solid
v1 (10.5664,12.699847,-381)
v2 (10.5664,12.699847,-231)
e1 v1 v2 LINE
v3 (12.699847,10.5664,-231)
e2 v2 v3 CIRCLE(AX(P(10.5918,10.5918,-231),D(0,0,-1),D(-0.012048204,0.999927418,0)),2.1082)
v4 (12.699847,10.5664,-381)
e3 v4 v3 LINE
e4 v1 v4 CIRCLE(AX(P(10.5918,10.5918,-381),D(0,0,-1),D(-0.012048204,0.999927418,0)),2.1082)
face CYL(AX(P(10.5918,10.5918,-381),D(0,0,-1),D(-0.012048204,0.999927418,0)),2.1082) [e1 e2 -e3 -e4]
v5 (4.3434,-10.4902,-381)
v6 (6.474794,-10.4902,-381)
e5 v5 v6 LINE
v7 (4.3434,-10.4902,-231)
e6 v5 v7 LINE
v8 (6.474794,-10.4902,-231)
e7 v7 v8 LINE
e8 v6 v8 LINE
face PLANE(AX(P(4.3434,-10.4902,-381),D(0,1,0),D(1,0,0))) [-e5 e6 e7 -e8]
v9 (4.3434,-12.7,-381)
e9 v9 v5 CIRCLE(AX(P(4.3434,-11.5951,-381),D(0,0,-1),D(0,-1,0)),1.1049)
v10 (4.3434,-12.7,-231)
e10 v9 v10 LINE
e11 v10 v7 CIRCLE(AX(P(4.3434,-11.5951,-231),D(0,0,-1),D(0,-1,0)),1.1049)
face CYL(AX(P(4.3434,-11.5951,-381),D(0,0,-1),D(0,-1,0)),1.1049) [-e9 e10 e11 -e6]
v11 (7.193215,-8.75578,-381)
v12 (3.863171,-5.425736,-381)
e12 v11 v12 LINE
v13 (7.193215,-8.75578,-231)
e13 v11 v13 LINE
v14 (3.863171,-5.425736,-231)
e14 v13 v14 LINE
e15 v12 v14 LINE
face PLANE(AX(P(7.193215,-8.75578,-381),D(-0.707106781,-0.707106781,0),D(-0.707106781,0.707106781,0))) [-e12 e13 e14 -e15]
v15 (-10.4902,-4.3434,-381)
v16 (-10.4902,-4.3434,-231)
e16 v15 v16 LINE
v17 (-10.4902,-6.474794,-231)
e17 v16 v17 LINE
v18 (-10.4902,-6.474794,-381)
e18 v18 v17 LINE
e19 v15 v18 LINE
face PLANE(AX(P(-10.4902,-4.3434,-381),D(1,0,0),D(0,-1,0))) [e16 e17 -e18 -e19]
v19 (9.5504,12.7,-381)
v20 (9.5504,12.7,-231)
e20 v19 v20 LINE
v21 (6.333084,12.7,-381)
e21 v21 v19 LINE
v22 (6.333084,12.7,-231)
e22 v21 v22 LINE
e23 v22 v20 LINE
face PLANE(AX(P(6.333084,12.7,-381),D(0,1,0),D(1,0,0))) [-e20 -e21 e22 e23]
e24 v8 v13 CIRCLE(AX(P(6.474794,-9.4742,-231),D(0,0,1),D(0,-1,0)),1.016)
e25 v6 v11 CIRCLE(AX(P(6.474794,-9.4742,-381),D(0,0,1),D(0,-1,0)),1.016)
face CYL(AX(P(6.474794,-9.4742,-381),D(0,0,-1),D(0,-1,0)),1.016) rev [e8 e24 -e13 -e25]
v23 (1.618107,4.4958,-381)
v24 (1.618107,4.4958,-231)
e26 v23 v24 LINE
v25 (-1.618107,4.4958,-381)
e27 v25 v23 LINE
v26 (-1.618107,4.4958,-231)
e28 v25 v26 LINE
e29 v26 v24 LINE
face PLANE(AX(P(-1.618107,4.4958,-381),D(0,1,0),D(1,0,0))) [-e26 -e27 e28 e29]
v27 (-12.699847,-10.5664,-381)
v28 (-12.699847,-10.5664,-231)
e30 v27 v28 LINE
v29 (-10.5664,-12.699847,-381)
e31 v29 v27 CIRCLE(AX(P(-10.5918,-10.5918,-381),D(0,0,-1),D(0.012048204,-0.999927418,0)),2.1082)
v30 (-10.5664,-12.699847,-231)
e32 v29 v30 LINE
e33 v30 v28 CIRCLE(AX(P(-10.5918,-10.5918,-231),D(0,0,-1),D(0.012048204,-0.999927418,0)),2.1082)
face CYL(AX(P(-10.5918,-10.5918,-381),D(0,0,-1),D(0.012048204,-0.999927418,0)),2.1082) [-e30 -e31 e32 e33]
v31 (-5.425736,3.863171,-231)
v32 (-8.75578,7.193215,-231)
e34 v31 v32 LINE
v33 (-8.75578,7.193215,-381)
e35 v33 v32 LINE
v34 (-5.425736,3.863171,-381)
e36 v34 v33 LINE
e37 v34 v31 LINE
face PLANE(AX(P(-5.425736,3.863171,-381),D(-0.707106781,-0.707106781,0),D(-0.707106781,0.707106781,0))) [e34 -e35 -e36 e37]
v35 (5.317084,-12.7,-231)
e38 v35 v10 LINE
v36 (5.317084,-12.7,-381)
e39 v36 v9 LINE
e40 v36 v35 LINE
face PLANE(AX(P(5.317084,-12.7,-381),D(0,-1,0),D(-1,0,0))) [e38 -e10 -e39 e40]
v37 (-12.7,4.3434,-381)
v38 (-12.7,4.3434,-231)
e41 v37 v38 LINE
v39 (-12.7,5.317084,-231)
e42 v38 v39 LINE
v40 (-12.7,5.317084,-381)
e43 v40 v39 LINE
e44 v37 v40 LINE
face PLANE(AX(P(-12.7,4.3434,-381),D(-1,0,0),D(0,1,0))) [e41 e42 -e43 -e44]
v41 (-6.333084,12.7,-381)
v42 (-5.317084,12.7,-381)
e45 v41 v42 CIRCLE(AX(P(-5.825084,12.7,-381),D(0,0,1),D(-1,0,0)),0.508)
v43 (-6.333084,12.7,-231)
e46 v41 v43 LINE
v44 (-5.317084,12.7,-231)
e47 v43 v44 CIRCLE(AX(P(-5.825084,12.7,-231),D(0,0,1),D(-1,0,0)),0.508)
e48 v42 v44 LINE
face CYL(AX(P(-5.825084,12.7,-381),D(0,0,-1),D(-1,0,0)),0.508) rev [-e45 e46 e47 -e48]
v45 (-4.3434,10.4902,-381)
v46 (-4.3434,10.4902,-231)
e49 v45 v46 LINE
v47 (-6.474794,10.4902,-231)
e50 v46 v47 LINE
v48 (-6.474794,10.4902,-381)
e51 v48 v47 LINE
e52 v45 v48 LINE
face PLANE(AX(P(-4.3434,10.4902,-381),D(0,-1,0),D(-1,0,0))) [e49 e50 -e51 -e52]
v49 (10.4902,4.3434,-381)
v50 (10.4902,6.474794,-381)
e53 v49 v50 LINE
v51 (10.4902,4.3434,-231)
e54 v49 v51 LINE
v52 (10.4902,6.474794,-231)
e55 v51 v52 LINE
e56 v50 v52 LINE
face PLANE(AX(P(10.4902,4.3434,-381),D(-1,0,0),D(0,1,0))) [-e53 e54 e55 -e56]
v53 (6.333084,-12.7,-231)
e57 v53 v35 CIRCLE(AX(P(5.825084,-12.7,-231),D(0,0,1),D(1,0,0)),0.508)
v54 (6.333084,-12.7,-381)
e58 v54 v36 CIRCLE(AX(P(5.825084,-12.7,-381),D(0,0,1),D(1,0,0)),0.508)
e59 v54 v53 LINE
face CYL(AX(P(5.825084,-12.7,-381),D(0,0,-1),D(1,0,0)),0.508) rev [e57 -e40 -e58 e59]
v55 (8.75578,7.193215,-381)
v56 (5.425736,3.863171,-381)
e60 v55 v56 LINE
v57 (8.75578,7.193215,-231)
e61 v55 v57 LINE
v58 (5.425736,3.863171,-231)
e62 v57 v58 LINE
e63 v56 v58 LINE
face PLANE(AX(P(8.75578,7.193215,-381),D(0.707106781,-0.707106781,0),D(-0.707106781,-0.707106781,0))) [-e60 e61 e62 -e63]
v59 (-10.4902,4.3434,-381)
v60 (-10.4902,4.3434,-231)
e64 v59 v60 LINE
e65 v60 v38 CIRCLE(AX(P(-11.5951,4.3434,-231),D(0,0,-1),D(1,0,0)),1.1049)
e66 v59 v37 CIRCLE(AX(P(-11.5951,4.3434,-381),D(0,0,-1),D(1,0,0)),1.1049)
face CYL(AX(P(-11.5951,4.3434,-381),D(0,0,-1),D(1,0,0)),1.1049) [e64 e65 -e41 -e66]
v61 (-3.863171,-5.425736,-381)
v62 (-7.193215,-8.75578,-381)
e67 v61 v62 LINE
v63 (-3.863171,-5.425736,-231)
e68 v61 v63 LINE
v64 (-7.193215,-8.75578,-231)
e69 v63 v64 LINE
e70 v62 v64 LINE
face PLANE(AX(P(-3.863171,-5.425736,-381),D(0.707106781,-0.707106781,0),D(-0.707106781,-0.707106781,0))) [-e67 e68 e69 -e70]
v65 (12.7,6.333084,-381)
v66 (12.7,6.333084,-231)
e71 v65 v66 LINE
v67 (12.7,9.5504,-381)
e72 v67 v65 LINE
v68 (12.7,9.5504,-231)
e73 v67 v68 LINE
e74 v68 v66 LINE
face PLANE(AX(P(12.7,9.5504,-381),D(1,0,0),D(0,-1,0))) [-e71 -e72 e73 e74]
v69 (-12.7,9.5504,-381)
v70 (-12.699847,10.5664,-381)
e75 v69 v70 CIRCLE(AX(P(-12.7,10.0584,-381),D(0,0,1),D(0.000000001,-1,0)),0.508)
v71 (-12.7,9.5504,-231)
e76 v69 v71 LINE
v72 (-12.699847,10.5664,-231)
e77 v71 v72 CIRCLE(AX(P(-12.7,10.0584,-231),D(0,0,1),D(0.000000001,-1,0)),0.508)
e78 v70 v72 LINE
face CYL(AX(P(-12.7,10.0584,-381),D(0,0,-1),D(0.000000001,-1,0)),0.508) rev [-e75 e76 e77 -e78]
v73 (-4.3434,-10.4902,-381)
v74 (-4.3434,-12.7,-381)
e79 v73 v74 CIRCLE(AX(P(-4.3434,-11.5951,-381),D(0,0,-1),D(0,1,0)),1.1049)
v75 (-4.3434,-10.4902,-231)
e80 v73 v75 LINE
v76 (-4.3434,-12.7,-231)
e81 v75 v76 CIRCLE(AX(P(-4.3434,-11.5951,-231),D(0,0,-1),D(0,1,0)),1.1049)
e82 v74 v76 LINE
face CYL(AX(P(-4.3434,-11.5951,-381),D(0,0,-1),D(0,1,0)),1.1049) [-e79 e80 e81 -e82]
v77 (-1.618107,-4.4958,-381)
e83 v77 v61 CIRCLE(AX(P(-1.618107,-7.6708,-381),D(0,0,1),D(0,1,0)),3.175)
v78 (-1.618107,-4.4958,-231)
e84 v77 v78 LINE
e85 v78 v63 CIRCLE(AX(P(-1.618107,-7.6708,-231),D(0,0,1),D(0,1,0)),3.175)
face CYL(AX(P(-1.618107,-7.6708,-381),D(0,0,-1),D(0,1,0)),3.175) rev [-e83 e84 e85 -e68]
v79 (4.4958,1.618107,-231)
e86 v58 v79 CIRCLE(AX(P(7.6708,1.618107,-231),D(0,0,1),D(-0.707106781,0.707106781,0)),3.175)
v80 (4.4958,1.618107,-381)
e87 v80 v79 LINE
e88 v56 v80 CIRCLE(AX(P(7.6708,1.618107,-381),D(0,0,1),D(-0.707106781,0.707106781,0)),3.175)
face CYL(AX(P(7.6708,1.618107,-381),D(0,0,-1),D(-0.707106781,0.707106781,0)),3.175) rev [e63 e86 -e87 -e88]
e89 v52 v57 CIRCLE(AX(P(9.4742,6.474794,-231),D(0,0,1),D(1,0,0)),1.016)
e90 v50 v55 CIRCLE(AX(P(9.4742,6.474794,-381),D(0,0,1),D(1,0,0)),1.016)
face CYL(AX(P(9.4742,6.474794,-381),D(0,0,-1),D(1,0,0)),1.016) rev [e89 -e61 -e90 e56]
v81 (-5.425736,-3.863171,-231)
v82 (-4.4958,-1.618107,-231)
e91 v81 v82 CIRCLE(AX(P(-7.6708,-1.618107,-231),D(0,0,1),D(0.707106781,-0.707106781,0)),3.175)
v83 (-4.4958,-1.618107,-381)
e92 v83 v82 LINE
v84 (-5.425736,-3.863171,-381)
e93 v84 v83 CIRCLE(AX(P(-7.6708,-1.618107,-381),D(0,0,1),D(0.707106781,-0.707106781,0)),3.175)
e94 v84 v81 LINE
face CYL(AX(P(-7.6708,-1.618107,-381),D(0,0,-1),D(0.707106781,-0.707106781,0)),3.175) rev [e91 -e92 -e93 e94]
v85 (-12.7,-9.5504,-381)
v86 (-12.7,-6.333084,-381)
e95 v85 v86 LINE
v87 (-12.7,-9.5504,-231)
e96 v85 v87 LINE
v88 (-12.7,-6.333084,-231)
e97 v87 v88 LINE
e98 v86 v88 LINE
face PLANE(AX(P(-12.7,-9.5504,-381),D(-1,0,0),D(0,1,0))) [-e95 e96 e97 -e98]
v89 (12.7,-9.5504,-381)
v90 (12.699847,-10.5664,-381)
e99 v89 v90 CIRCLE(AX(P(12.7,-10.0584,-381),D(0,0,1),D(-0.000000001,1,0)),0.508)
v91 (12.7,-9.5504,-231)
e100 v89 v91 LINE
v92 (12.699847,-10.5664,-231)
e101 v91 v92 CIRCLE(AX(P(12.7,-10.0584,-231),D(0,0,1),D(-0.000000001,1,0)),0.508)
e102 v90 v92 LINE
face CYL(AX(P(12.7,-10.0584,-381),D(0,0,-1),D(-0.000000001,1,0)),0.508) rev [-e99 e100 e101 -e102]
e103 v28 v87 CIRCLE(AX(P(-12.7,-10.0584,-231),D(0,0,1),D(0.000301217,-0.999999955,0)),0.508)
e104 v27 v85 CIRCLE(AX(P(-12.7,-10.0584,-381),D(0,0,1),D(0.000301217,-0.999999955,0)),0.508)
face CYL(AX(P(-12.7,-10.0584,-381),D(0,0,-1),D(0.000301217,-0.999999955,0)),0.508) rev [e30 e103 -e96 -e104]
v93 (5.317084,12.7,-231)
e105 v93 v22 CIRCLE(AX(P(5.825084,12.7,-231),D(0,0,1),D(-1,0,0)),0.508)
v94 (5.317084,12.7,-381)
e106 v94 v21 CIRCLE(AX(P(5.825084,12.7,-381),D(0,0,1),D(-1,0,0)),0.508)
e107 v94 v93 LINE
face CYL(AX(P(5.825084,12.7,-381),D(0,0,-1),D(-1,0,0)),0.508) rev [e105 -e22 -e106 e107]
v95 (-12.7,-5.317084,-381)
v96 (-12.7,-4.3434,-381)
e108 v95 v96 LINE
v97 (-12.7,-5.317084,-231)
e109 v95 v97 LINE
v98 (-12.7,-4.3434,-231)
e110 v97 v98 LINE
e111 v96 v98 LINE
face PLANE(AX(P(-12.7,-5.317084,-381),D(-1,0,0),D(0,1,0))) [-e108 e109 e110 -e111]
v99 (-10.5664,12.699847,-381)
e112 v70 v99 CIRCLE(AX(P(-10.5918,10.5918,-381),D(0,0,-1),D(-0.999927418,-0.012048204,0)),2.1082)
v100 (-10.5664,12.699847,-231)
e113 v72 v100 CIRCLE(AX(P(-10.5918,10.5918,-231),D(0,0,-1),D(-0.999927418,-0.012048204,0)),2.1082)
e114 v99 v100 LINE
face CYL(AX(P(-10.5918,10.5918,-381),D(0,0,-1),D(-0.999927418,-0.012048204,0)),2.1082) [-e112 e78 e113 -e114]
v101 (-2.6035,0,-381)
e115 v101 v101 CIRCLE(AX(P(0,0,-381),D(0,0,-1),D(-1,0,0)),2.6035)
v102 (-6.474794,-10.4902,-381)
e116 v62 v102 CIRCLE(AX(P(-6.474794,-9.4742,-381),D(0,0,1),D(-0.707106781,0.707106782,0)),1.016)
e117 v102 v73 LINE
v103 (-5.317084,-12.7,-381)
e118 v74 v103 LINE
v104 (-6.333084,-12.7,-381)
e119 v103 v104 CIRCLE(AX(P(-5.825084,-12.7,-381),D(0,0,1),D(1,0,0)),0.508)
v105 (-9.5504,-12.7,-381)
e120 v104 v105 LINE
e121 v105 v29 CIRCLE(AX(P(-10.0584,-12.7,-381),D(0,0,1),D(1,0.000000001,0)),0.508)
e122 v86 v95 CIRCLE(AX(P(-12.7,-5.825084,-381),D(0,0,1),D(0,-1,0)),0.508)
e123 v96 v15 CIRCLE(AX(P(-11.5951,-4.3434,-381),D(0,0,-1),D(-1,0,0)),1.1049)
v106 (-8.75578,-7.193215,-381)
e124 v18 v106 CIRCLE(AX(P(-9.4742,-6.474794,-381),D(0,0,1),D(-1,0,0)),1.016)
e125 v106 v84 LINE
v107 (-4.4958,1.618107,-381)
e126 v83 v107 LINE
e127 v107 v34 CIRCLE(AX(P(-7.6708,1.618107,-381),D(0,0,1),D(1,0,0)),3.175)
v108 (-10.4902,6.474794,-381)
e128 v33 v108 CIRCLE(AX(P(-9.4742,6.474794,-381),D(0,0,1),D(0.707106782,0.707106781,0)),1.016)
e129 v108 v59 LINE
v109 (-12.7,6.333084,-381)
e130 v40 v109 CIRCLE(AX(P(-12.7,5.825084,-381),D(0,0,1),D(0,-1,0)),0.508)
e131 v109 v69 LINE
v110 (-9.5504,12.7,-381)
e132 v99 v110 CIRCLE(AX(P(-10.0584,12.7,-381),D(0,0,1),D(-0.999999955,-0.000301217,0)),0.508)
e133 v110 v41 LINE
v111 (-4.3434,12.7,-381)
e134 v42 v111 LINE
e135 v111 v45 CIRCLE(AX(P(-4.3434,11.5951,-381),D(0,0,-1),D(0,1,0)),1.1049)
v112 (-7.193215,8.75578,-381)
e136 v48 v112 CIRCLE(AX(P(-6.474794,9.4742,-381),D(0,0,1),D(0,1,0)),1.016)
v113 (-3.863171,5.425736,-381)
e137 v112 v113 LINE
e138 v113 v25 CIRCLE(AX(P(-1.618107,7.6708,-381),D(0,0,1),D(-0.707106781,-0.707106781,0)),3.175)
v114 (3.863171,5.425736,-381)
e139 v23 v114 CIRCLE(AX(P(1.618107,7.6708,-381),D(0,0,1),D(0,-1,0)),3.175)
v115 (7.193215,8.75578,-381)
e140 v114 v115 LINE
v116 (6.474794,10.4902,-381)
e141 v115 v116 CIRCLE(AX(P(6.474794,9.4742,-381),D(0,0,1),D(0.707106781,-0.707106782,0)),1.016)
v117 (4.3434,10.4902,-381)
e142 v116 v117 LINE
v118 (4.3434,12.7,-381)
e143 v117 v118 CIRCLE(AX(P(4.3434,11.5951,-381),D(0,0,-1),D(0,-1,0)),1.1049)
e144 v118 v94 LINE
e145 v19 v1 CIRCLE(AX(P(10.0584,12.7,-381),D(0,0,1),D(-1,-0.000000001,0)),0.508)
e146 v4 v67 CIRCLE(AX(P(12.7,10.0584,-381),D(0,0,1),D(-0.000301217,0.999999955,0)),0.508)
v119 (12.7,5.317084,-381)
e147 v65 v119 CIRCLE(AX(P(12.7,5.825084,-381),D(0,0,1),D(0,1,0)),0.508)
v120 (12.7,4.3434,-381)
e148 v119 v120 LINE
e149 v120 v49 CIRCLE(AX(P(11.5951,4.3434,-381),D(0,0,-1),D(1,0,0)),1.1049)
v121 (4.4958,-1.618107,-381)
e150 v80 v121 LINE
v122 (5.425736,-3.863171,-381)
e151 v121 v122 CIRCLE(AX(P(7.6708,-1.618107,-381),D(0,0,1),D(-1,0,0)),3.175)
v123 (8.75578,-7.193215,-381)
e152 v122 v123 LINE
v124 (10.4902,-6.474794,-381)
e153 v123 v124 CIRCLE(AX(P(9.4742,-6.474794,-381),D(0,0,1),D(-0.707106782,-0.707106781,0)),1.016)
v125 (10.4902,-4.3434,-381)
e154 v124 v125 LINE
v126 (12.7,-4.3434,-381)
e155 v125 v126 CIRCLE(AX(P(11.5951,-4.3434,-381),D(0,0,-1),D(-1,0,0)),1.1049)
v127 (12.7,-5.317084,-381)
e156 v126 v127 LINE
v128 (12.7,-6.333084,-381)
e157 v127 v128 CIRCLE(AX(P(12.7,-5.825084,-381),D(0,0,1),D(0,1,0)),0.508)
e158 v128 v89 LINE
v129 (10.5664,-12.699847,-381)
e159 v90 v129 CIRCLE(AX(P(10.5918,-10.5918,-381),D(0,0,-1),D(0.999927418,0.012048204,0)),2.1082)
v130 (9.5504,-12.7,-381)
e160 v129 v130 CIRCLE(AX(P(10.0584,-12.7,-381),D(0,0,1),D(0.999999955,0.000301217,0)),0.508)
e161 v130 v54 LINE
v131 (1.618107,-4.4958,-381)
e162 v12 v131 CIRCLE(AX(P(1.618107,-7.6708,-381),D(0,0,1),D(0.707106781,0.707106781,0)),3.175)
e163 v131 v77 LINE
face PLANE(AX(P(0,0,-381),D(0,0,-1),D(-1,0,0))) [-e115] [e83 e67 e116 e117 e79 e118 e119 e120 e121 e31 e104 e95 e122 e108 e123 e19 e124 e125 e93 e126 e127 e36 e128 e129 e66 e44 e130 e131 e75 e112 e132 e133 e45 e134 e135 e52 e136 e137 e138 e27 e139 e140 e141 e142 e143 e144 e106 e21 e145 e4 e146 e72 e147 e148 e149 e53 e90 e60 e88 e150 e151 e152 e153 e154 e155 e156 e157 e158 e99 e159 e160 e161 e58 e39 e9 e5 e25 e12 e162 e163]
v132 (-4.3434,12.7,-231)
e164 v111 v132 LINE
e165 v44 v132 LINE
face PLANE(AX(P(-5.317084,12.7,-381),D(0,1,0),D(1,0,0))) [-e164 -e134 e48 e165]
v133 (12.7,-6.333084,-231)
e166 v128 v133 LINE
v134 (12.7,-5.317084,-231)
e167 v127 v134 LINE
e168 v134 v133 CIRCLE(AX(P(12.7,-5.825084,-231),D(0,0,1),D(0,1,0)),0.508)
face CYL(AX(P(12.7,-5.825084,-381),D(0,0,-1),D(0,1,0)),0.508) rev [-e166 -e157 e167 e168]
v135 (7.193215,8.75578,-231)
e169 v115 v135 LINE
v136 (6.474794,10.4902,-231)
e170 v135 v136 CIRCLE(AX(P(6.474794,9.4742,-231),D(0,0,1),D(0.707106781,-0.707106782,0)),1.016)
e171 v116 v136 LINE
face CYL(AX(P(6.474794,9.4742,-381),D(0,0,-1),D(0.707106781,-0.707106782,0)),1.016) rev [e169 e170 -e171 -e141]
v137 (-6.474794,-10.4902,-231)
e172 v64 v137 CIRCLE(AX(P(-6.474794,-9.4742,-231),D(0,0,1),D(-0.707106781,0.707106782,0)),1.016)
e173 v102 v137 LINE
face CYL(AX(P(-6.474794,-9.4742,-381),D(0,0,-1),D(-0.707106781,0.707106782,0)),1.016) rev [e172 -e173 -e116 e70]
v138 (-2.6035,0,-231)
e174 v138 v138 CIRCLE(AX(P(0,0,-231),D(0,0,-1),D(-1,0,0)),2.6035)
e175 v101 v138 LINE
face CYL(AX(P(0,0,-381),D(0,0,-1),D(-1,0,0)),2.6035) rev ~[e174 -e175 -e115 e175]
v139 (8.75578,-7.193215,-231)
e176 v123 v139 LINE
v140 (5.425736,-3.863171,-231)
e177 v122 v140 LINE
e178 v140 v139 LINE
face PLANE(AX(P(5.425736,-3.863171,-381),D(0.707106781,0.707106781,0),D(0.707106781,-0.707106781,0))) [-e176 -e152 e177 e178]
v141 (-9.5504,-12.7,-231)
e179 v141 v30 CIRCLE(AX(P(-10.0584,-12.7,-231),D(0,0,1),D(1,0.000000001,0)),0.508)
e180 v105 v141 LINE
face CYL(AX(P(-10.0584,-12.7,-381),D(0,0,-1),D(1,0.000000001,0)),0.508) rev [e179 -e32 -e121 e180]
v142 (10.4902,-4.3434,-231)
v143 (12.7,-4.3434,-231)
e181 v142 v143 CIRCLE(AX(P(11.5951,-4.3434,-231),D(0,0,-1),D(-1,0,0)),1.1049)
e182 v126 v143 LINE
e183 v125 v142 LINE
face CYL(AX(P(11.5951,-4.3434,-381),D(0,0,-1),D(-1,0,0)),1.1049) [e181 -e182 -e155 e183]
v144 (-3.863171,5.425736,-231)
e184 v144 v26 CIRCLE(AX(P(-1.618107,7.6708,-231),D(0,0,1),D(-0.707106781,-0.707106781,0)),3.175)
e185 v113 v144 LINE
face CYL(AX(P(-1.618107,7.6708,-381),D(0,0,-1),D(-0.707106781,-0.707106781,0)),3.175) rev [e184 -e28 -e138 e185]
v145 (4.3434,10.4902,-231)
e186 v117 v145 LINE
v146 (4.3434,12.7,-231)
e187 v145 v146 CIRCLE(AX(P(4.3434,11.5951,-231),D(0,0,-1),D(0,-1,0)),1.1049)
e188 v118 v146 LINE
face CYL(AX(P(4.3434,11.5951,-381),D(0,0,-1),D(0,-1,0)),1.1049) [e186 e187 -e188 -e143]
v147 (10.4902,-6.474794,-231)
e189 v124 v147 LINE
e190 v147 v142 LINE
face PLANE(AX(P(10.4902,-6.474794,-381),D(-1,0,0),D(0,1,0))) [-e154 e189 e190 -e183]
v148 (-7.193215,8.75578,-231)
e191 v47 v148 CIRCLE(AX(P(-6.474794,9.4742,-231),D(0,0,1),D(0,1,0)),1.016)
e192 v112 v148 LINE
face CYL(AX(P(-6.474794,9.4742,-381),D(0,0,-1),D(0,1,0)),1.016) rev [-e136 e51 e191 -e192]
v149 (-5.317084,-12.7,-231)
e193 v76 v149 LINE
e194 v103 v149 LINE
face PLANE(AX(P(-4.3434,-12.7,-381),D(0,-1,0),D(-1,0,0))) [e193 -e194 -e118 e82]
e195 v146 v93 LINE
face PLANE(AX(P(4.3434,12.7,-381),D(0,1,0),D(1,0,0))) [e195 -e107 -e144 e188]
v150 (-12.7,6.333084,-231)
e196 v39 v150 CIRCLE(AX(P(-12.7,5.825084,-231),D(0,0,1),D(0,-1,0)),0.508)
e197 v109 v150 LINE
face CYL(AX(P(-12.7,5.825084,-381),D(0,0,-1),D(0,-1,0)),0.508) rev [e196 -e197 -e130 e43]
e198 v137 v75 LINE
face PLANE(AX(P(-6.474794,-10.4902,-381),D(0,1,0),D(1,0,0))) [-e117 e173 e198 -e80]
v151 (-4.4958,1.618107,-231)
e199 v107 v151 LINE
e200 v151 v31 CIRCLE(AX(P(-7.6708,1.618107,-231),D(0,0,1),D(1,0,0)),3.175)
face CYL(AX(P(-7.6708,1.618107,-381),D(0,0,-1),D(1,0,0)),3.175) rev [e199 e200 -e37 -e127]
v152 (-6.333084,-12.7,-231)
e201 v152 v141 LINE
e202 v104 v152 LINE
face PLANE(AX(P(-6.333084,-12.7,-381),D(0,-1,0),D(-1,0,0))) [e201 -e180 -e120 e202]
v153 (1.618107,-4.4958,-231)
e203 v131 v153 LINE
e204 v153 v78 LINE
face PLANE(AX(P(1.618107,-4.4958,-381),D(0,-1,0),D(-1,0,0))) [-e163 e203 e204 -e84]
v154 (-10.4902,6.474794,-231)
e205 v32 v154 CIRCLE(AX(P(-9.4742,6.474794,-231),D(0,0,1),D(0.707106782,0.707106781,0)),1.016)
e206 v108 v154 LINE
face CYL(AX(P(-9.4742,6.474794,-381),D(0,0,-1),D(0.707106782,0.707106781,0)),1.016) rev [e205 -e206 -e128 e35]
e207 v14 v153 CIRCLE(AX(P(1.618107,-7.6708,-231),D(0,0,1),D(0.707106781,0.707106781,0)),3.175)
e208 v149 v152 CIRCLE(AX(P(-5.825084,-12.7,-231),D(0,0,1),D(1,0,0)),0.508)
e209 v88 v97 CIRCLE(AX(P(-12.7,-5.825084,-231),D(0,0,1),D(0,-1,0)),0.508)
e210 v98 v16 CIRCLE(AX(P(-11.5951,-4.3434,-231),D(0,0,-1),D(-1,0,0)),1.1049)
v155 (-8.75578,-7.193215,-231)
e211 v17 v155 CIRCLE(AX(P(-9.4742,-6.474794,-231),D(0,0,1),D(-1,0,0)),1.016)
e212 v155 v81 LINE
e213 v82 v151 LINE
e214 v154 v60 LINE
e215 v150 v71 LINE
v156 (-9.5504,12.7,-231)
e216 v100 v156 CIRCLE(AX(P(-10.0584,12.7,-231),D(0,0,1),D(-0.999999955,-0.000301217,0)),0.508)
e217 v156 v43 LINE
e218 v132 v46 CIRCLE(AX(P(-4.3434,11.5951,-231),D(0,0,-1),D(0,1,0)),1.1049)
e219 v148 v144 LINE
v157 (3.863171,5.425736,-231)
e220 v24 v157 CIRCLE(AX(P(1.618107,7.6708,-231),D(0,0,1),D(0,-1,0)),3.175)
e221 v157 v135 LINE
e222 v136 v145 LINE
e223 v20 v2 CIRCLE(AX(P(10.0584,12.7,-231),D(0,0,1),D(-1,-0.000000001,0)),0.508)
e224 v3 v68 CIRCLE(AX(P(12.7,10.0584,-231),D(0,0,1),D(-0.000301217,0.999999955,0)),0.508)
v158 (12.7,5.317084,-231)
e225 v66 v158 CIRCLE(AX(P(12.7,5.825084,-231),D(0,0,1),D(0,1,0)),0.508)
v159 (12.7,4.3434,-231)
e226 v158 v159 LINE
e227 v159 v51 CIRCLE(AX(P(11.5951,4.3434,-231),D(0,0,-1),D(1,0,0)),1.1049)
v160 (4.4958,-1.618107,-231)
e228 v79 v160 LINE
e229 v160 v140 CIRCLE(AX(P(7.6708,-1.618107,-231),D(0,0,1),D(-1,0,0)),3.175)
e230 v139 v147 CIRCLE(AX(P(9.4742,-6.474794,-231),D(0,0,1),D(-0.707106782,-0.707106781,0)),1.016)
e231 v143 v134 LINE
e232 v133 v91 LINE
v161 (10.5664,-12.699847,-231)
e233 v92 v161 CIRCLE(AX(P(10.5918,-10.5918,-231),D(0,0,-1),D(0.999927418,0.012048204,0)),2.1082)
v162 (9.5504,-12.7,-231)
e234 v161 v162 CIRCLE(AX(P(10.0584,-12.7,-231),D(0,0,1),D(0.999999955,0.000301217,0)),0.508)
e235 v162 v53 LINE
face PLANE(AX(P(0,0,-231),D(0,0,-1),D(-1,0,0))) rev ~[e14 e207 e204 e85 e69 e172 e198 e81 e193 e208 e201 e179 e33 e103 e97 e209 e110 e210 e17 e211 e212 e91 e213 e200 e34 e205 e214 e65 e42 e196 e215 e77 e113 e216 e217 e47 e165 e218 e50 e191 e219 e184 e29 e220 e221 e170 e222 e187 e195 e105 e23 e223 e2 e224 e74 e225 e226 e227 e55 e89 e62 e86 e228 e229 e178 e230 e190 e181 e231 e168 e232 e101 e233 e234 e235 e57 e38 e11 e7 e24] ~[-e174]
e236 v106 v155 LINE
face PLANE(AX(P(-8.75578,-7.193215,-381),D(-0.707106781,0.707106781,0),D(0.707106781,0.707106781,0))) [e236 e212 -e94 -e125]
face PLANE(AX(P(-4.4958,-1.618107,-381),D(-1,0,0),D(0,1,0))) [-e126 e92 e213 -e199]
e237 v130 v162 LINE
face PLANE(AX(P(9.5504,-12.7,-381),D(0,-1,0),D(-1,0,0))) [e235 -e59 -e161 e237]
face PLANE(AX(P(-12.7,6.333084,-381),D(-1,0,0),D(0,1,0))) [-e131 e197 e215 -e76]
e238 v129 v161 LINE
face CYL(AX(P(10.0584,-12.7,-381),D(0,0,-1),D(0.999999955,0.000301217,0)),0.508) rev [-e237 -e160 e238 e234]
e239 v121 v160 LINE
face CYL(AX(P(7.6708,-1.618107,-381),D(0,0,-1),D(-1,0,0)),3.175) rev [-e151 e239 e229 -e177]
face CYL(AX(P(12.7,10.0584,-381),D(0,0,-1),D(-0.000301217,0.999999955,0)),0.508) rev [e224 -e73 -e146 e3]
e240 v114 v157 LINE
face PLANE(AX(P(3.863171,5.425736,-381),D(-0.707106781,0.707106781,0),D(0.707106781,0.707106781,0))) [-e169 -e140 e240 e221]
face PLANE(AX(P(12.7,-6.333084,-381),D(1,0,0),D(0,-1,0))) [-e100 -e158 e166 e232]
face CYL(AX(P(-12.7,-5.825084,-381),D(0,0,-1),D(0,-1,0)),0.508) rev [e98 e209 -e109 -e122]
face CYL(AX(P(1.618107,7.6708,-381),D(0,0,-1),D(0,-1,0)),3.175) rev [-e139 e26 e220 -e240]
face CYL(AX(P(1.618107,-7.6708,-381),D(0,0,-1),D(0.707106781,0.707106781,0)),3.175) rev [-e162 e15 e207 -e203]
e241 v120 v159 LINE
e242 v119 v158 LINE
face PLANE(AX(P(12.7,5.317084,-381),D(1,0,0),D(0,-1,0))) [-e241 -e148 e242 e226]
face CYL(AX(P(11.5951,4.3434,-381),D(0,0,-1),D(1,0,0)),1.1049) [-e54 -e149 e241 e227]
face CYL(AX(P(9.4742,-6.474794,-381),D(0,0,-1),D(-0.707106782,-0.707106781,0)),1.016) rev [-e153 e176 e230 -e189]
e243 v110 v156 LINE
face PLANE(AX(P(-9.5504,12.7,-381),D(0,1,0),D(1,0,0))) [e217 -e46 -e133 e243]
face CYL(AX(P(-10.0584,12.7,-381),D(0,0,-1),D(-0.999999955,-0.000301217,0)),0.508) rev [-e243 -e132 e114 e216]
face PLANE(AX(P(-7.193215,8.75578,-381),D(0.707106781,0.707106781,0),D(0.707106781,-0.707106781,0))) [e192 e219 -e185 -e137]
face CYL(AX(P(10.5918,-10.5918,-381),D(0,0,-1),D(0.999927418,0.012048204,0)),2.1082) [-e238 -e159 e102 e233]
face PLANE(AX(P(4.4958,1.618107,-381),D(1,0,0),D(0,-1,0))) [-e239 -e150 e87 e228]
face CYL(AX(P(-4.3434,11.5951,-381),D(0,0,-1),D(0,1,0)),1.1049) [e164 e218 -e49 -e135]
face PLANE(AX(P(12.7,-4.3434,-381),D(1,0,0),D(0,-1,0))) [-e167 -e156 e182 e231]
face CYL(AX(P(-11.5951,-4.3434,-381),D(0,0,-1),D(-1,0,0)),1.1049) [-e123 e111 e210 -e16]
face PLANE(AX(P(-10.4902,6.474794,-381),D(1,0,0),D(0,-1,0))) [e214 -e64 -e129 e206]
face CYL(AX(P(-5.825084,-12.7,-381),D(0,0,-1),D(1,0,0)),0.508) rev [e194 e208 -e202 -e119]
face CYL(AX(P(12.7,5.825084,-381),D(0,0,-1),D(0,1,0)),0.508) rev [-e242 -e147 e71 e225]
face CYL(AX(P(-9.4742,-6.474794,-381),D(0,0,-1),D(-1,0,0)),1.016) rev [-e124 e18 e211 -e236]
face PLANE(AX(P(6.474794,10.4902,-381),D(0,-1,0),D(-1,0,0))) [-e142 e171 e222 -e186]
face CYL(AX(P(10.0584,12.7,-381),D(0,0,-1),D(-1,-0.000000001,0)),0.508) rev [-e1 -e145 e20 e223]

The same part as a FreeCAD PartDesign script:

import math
import FreeCAD as App
import Part
import Sketcher
from FreeCAD import Vector
Q = App.Units.Quantity

doc = App.newDocument("Part")
body = doc.addObject("PartDesign::Body", "Body")

# Sketch on XY plane
sketch1 = body.newObject("Sketcher::SketchObject", "Sketch")
sketch1.AttachmentSupport = (doc.getObject("XY_Plane"), [""])
sketch1.MapMode = "FlatFace"
sketch1.AttachmentOffset = App.Placement(Vector(0, 0, -15 * 25.4), App.Rotation())
sketch1.addGeometry(Part.LineSegment(Vector(-12.7, -9.6, 0), Vector(-12.7, -6.3, 0)), False)
sketch1.addGeometry(Part.ArcOfCircle(Part.Circle(Vector(-12.7, -5.8, 0), Vector(0, 0, 1), 0.5), math.radians(-90), math.radians(90)), False)
sketch1.addGeometry(Part.LineSegment(Vector(-12.7, -5.3, 0), Vector(-12.7, -4.3, 0)), False)
sketch1.addGeometry(Part.ArcOfCircle(Part.Circle(Vector(-11.6, -4.3, 0), Vector(0, 0, 1), 1.1), math.radians(0), math.radians(180)), False)
sketch1.addGeometry(Part.LineSegment(Vector(-10.5, -4.3, 0), Vector(-10.5, -6.5, 0)), False)
sketch1.addGeometry(Part.ArcOfCircle(Part.Circle(Vector(-9.5, -6.5, 0), Vector(0, 0, 1), 1), math.radians(180), math.radians(315)), False)
sketch1.addGeometry(Part.LineSegment(Vector(-8.8, -7.2, 0), Vector(-5.4, -3.9, 0)), False)
sketch1.addGeometry(Part.ArcOfCircle(Part.Circle(Vector(-7.7, -1.6, 0), Vector(0, 0, 1), 3.2), math.radians(-45), math.radians(0)), False)
sketch1.addGeometry(Part.LineSegment(Vector(-4.5, -1.6, 0), Vector(-4.5, 1.6, 0)), False)
sketch1.addGeometry(Part.ArcOfCircle(Part.Circle(Vector(-7.7, 1.6, 0), Vector(0, 0, 1), 3.2), math.radians(0), math.radians(45)), False)
sketch1.addGeometry(Part.LineSegment(Vector(-5.4, 3.9, 0), Vector(-8.8, 7.2, 0)), False)
sketch1.addGeometry(Part.ArcOfCircle(Part.Circle(Vector(-9.5, 6.5, 0), Vector(0, 0, 1), 1), math.radians(45), math.radians(180)), False)
sketch1.addGeometry(Part.LineSegment(Vector(-10.5, 6.5, 0), Vector(-10.5, 4.3, 0)), False)
sketch1.addGeometry(Part.ArcOfCircle(Part.Circle(Vector(-11.6, 4.3, 0), Vector(0, 0, 1), 1.1), math.radians(180), math.radians(360)), False)
sketch1.addGeometry(Part.LineSegment(Vector(-12.7, 4.3, 0), Vector(-12.7, 5.3, 0)), False)
sketch1.addGeometry(Part.ArcOfCircle(Part.Circle(Vector(-12.7, 5.8, 0), Vector(0, 0, 1), 0.5), math.radians(-90), math.radians(90)), False)
sketch1.addGeometry(Part.LineSegment(Vector(-12.7, 6.3, 0), Vector(-12.7, 9.6, 0)), False)
sketch1.addGeometry(Part.ArcOfCircle(Part.Circle(Vector(-12.7, 10.1, 0), Vector(0, 0, 1), 0.5), math.radians(-90), math.radians(90)), False)
sketch1.addGeometry(Part.ArcOfCircle(Part.Circle(Vector(-10.6, 10.6, 0), Vector(0, 0, 1), 2.1), math.radians(89), math.radians(181)), False)
sketch1.addGeometry(Part.ArcOfCircle(Part.Circle(Vector(-10.1, 12.7, 0), Vector(0, 0, 1), 0.5), math.radians(-180), math.radians(0)), False)
sketch1.addGeometry(Part.LineSegment(Vector(-9.6, 12.7, 0), Vector(-6.3, 12.7, 0)), False)
sketch1.addGeometry(Part.ArcOfCircle(Part.Circle(Vector(-5.8, 12.7, 0), Vector(0, 0, 1), 0.5), math.radians(180), math.radians(360)), False)
sketch1.addGeometry(Part.LineSegment(Vector(-5.3, 12.7, 0), Vector(-4.3, 12.7, 0)), False)
sketch1.addGeometry(Part.ArcOfCircle(Part.Circle(Vector(-4.3, 11.6, 0), Vector(0, 0, 1), 1.1), math.radians(-90), math.radians(90)), False)
sketch1.addGeometry(Part.LineSegment(Vector(-4.3, 10.5, 0), Vector(-6.5, 10.5, 0)), False)
sketch1.addGeometry(Part.ArcOfCircle(Part.Circle(Vector(-6.5, 9.5, 0), Vector(0, 0, 1), 1), math.radians(90), math.radians(225)), False)
sketch1.addGeometry(Part.LineSegment(Vector(-7.2, 8.8, 0), Vector(-3.9, 5.4, 0)), False)
sketch1.addGeometry(Part.ArcOfCircle(Part.Circle(Vector(-1.6, 7.7, 0), Vector(0, 0, 1), 3.2), math.radians(-135), math.radians(-90)), False)
sketch1.addGeometry(Part.LineSegment(Vector(-1.6, 4.5, 0), Vector(1.6, 4.5, 0)), False)
sketch1.addGeometry(Part.ArcOfCircle(Part.Circle(Vector(1.6, 7.7, 0), Vector(0, 0, 1), 3.2), math.radians(-90), math.radians(-45)), False)
sketch1.addGeometry(Part.LineSegment(Vector(3.9, 5.4, 0), Vector(7.2, 8.8, 0)), False)
sketch1.addGeometry(Part.ArcOfCircle(Part.Circle(Vector(6.5, 9.5, 0), Vector(0, 0, 1), 1), math.radians(-45), math.radians(90)), False)
sketch1.addGeometry(Part.LineSegment(Vector(6.5, 10.5, 0), Vector(4.3, 10.5, 0)), False)
sketch1.addGeometry(Part.ArcOfCircle(Part.Circle(Vector(4.3, 11.6, 0), Vector(0, 0, 1), 1.1), math.radians(90), math.radians(270)), False)
sketch1.addGeometry(Part.LineSegment(Vector(4.3, 12.7, 0), Vector(5.3, 12.7, 0)), False)
sketch1.addGeometry(Part.ArcOfCircle(Part.Circle(Vector(5.8, 12.7, 0), Vector(0, 0, 1), 0.5), math.radians(180), math.radians(360)), False)
sketch1.addGeometry(Part.LineSegment(Vector(6.3, 12.7, 0), Vector(9.6, 12.7, 0)), False)
sketch1.addGeometry(Part.ArcOfCircle(Part.Circle(Vector(10.1, 12.7, 0), Vector(0, 0, 1), 0.5), math.radians(180), math.radians(360)), False)
sketch1.addGeometry(Part.ArcOfCircle(Part.Circle(Vector(10.6, 10.6, 0), Vector(0, 0, 1), 2.1), math.radians(-1), math.radians(91)), False)
sketch1.addGeometry(Part.ArcOfCircle(Part.Circle(Vector(12.7, 10.1, 0), Vector(0, 0, 1), 0.5), math.radians(90), math.radians(270)), False)
sketch1.addGeometry(Part.LineSegment(Vector(12.7, 9.6, 0), Vector(12.7, 6.3, 0)), False)
sketch1.addGeometry(Part.ArcOfCircle(Part.Circle(Vector(12.7, 5.8, 0), Vector(0, 0, 1), 0.5), math.radians(90), math.radians(270)), False)
sketch1.addGeometry(Part.LineSegment(Vector(12.7, 5.3, 0), Vector(12.7, 4.3, 0)), False)
sketch1.addGeometry(Part.ArcOfCircle(Part.Circle(Vector(11.6, 4.3, 0), Vector(0, 0, 1), 1.1), math.radians(180), math.radians(360)), False)
sketch1.addGeometry(Part.LineSegment(Vector(10.5, 4.3, 0), Vector(10.5, 6.5, 0)), False)
sketch1.addGeometry(Part.ArcOfCircle(Part.Circle(Vector(9.5, 6.5, 0), Vector(0, 0, 1), 1), math.radians(0), math.radians(135)), False)
sketch1.addGeometry(Part.LineSegment(Vector(8.8, 7.2, 0), Vector(5.4, 3.9, 0)), False)
sketch1.addGeometry(Part.ArcOfCircle(Part.Circle(Vector(7.7, 1.6, 0), Vector(0, 0, 1), 3.2), math.radians(135), math.radians(180)), False)
sketch1.addGeometry(Part.LineSegment(Vector(4.5, 1.6, 0), Vector(4.5, -1.6, 0)), False)
sketch1.addGeometry(Part.ArcOfCircle(Part.Circle(Vector(7.7, -1.6, 0), Vector(0, 0, 1), 3.2), math.radians(180), math.radians(225)), False)
sketch1.addGeometry(Part.LineSegment(Vector(5.4, -3.9, 0), Vector(8.8, -7.2, 0)), False)
sketch1.addGeometry(Part.ArcOfCircle(Part.Circle(Vector(9.5, -6.5, 0), Vector(0, 0, 1), 1), math.radians(-135), math.radians(0)), False)
sketch1.addGeometry(Part.LineSegment(Vector(10.5, -6.5, 0), Vector(10.5, -4.3, 0)), False)
sketch1.addGeometry(Part.ArcOfCircle(Part.Circle(Vector(11.6, -4.3, 0), Vector(0, 0, 1), 1.1), math.radians(0), math.radians(180)), False)
sketch1.addGeometry(Part.LineSegment(Vector(12.7, -4.3, 0), Vector(12.7, -5.3, 0)), False)
sketch1.addGeometry(Part.ArcOfCircle(Part.Circle(Vector(12.7, -5.8, 0), Vector(0, 0, 1), 0.5), math.radians(90), math.radians(270)), False)
sketch1.addGeometry(Part.LineSegment(Vector(12.7, -6.3, 0), Vector(12.7, -9.6, 0)), False)
sketch1.addGeometry(Part.ArcOfCircle(Part.Circle(Vector(12.7, -10.1, 0), Vector(0, 0, 1), 0.5), math.radians(90), math.radians(270)), False)
sketch1.addGeometry(Part.ArcOfCircle(Part.Circle(Vector(10.6, -10.6, 0), Vector(0, 0, 1), 2.1), math.radians(-91), math.radians(1)), False)
sketch1.addGeometry(Part.ArcOfCircle(Part.Circle(Vector(10.1, -12.7, 0), Vector(0, 0, 1), 0.5), math.radians(0), math.radians(180)), False)
sketch1.addGeometry(Part.LineSegment(Vector(9.6, -12.7, 0), Vector(6.3, -12.7, 0)), False)
sketch1.addGeometry(Part.ArcOfCircle(Part.Circle(Vector(5.8, -12.7, 0), Vector(0, 0, 1), 0.5), math.radians(0), math.radians(180)), False)
sketch1.addGeometry(Part.LineSegment(Vector(5.3, -12.7, 0), Vector(4.3, -12.7, 0)), False)
sketch1.addGeometry(Part.ArcOfCircle(Part.Circle(Vector(4.3, -11.6, 0), Vector(0, 0, 1), 1.1), math.radians(90), math.radians(270)), False)
sketch1.addGeometry(Part.LineSegment(Vector(4.3, -10.5, 0), Vector(6.5, -10.5, 0)), False)
sketch1.addGeometry(Part.ArcOfCircle(Part.Circle(Vector(6.5, -9.5, 0), Vector(0, 0, 1), 1), math.radians(-90), math.radians(45)), False)
sketch1.addGeometry(Part.LineSegment(Vector(7.2, -8.8, 0), Vector(3.9, -5.4, 0)), False)
sketch1.addGeometry(Part.ArcOfCircle(Part.Circle(Vector(1.6, -7.7, 0), Vector(0, 0, 1), 3.2), math.radians(45), math.radians(90)), False)
sketch1.addGeometry(Part.LineSegment(Vector(1.6, -4.5, 0), Vector(-1.6, -4.5, 0)), False)
sketch1.addGeometry(Part.ArcOfCircle(Part.Circle(Vector(-1.6, -7.7, 0), Vector(0, 0, 1), 3.2), math.radians(90), math.radians(135)), False)
sketch1.addGeometry(Part.LineSegment(Vector(-3.9, -5.4, 0), Vector(-7.2, -8.8, 0)), False)
sketch1.addGeometry(Part.ArcOfCircle(Part.Circle(Vector(-6.5, -9.5, 0), Vector(0, 0, 1), 1), math.radians(135), math.radians(270)), False)
sketch1.addGeometry(Part.LineSegment(Vector(-6.5, -10.5, 0), Vector(-4.3, -10.5, 0)), False)
sketch1.addGeometry(Part.ArcOfCircle(Part.Circle(Vector(-4.3, -11.6, 0), Vector(0, 0, 1), 1.1), math.radians(-90), math.radians(90)), False)
sketch1.addGeometry(Part.LineSegment(Vector(-4.3, -12.7, 0), Vector(-5.3, -12.7, 0)), False)
sketch1.addGeometry(Part.ArcOfCircle(Part.Circle(Vector(-5.8, -12.7, 0), Vector(0, 0, 1), 0.5), math.radians(0), math.radians(180)), False)
sketch1.addGeometry(Part.LineSegment(Vector(-6.3, -12.7, 0), Vector(-9.6, -12.7, 0)), False)
sketch1.addGeometry(Part.ArcOfCircle(Part.Circle(Vector(-10.1, -12.7, 0), Vector(0, 0, 1), 0.5), math.radians(0), math.radians(180)), False)
sketch1.addGeometry(Part.ArcOfCircle(Part.Circle(Vector(-10.6, -10.6, 0), Vector(0, 0, 1), 2.1), math.radians(179), math.radians(271)), False)
sketch1.addGeometry(Part.ArcOfCircle(Part.Circle(Vector(-12.7, -10.1, 0), Vector(0, 0, 1), 0.5), math.radians(-90), math.radians(90)), False)
sketch1.addGeometry(Part.Circle(Vector(0, 0, 0), Vector(0, 0, 1), 2.6), False)
sketch1.addConstraint(Sketcher.Constraint("Coincident", 0, 2, 1, 1))
sketch1.addConstraint(Sketcher.Constraint("Coincident", 1, 2, 2, 1))
sketch1.addConstraint(Sketcher.Constraint("Tangent", 2, 2, 3, 2))
sketch1.addConstraint(Sketcher.Constraint("Tangent", 3, 1, 4, 1))
sketch1.addConstraint(Sketcher.Constraint("Tangent", 4, 2, 5, 1))
sketch1.addConstraint(Sketcher.Constraint("Tangent", 5, 2, 6, 1))
sketch1.addConstraint(Sketcher.Constraint("Tangent", 6, 2, 7, 1))
sketch1.addConstraint(Sketcher.Constraint("Tangent", 7, 2, 8, 1))
sketch1.addConstraint(Sketcher.Constraint("Tangent", 8, 2, 9, 1))
sketch1.addConstraint(Sketcher.Constraint("Tangent", 9, 2, 10, 1))
sketch1.addConstraint(Sketcher.Constraint("Tangent", 10, 2, 11, 1))
sketch1.addConstraint(Sketcher.Constraint("Tangent", 11, 2, 12, 1))
sketch1.addConstraint(Sketcher.Constraint("Tangent", 12, 2, 13, 2))
sketch1.addConstraint(Sketcher.Constraint("Tangent", 13, 1, 14, 1))
sketch1.addConstraint(Sketcher.Constraint("Coincident", 14, 2, 15, 1))
sketch1.addConstraint(Sketcher.Constraint("Coincident", 15, 2, 16, 1))
sketch1.addConstraint(Sketcher.Constraint("Coincident", 16, 2, 17, 1))
sketch1.addConstraint(Sketcher.Constraint("Coincident", 17, 2, 18, 2))
sketch1.addConstraint(Sketcher.Constraint("Coincident", 18, 1, 19, 1))
sketch1.addConstraint(Sketcher.Constraint("Coincident", 19, 2, 20, 1))
sketch1.addConstraint(Sketcher.Constraint("Coincident", 20, 2, 21, 1))
sketch1.addConstraint(Sketcher.Constraint("Coincident", 21, 2, 22, 1))
sketch1.addConstraint(Sketcher.Constraint("Tangent", 22, 2, 23, 2))
sketch1.addConstraint(Sketcher.Constraint("Tangent", 23, 1, 24, 1))
sketch1.addConstraint(Sketcher.Constraint("Tangent", 24, 2, 25, 1))
sketch1.addConstraint(Sketcher.Constraint("Tangent", 25, 2, 26, 1))
sketch1.addConstraint(Sketcher.Constraint("Tangent", 26, 2, 27, 1))
sketch1.addConstraint(Sketcher.Constraint("Tangent", 27, 2, 28, 1))
sketch1.addConstraint(Sketcher.Constraint("Tangent", 28, 2, 29, 1))
sketch1.addConstraint(Sketcher.Constraint("Tangent", 29, 2, 30, 1))
sketch1.addConstraint(Sketcher.Constraint("Tangent", 30, 2, 31, 1))
sketch1.addConstraint(Sketcher.Constraint("Tangent", 31, 2, 32, 1))
sketch1.addConstraint(Sketcher.Constraint("Tangent", 32, 2, 33, 2))
sketch1.addConstraint(Sketcher.Constraint("Tangent", 33, 1, 34, 1))
sketch1.addConstraint(Sketcher.Constraint("Coincident", 34, 2, 35, 1))
sketch1.addConstraint(Sketcher.Constraint("Coincident", 35, 2, 36, 1))
sketch1.addConstraint(Sketcher.Constraint("Coincident", 36, 2, 37, 1))
sketch1.addConstraint(Sketcher.Constraint("Coincident", 37, 2, 38, 2))
sketch1.addConstraint(Sketcher.Constraint("Coincident", 38, 1, 39, 1))
sketch1.addConstraint(Sketcher.Constraint("Coincident", 39, 2, 40, 1))
sketch1.addConstraint(Sketcher.Constraint("Coincident", 40, 2, 41, 1))
sketch1.addConstraint(Sketcher.Constraint("Coincident", 41, 2, 42, 1))
sketch1.addConstraint(Sketcher.Constraint("Tangent", 42, 2, 43, 2))
sketch1.addConstraint(Sketcher.Constraint("Tangent", 43, 1, 44, 1))
sketch1.addConstraint(Sketcher.Constraint("Tangent", 44, 2, 45, 1))
sketch1.addConstraint(Sketcher.Constraint("Tangent", 45, 2, 46, 1))
sketch1.addConstraint(Sketcher.Constraint("Tangent", 46, 2, 47, 1))
sketch1.addConstraint(Sketcher.Constraint("Tangent", 47, 2, 48, 1))
sketch1.addConstraint(Sketcher.Constraint("Tangent", 48, 2, 49, 1))
sketch1.addConstraint(Sketcher.Constraint("Tangent", 49, 2, 50, 1))
sketch1.addConstraint(Sketcher.Constraint("Tangent", 50, 2, 51, 1))
sketch1.addConstraint(Sketcher.Constraint("Tangent", 51, 2, 52, 1))
sketch1.addConstraint(Sketcher.Constraint("Tangent", 52, 2, 53, 2))
sketch1.addConstraint(Sketcher.Constraint("Tangent", 53, 1, 54, 1))
sketch1.addConstraint(Sketcher.Constraint("Coincident", 54, 2, 55, 1))
sketch1.addConstraint(Sketcher.Constraint("Coincident", 55, 2, 56, 1))
sketch1.addConstraint(Sketcher.Constraint("Coincident", 56, 2, 57, 1))
sketch1.addConstraint(Sketcher.Constraint("Coincident", 57, 2, 58, 2))
sketch1.addConstraint(Sketcher.Constraint("Coincident", 58, 1, 59, 1))
sketch1.addConstraint(Sketcher.Constraint("Coincident", 59, 2, 60, 1))
sketch1.addConstraint(Sketcher.Constraint("Coincident", 60, 2, 61, 1))
sketch1.addConstraint(Sketcher.Constraint("Coincident", 61, 2, 62, 1))
sketch1.addConstraint(Sketcher.Constraint("Tangent", 62, 2, 63, 2))
sketch1.addConstraint(Sketcher.Constraint("Tangent", 63, 1, 64, 1))
sketch1.addConstraint(Sketcher.Constraint("Tangent", 64, 2, 65, 1))
sketch1.addConstraint(Sketcher.Constraint("Tangent", 65, 2, 66, 1))
sketch1.addConstraint(Sketcher.Constraint("Tangent", 66, 2, 67, 1))
sketch1.addConstraint(Sketcher.Constraint("Tangent", 67, 2, 68, 1))
sketch1.addConstraint(Sketcher.Constraint("Tangent", 68, 2, 69, 1))
sketch1.addConstraint(Sketcher.Constraint("Tangent", 69, 2, 70, 1))
sketch1.addConstraint(Sketcher.Constraint("Tangent", 70, 2, 71, 1))
sketch1.addConstraint(Sketcher.Constraint("Tangent", 71, 2, 72, 1))
sketch1.addConstraint(Sketcher.Constraint("Tangent", 72, 2, 73, 2))
sketch1.addConstraint(Sketcher.Constraint("Tangent", 73, 1, 74, 1))
sketch1.addConstraint(Sketcher.Constraint("Coincident", 74, 2, 75, 1))
sketch1.addConstraint(Sketcher.Constraint("Coincident", 75, 2, 76, 1))
sketch1.addConstraint(Sketcher.Constraint("Coincident", 76, 2, 77, 1))
sketch1.addConstraint(Sketcher.Constraint("Coincident", 77, 2, 78, 2))
sketch1.addConstraint(Sketcher.Constraint("Coincident", 78, 1, 79, 1))
sketch1.addConstraint(Sketcher.Constraint("Coincident", 79, 2, 0, 1))
sketch1.addConstraint(Sketcher.Constraint("Vertical", 0))
sketch1.addConstraint(Sketcher.Constraint("Vertical", 2))
sketch1.addConstraint(Sketcher.Constraint("Vertical", 4))
sketch1.addConstraint(Sketcher.Constraint("Vertical", 8))
sketch1.addConstraint(Sketcher.Constraint("Vertical", 12))
sketch1.addConstraint(Sketcher.Constraint("Vertical", 14))
sketch1.addConstraint(Sketcher.Constraint("Vertical", 16))
sketch1.addConstraint(Sketcher.Constraint("Horizontal", 20))
sketch1.addConstraint(Sketcher.Constraint("Horizontal", 22))
sketch1.addConstraint(Sketcher.Constraint("Horizontal", 24))
sketch1.addConstraint(Sketcher.Constraint("Horizontal", 28))
sketch1.addConstraint(Sketcher.Constraint("Horizontal", 32))
sketch1.addConstraint(Sketcher.Constraint("Horizontal", 34))
sketch1.addConstraint(Sketcher.Constraint("Horizontal", 36))
sketch1.addConstraint(Sketcher.Constraint("Vertical", 40))
sketch1.addConstraint(Sketcher.Constraint("Vertical", 42))
sketch1.addConstraint(Sketcher.Constraint("Vertical", 44))
sketch1.addConstraint(Sketcher.Constraint("Vertical", 48))
sketch1.addConstraint(Sketcher.Constraint("Vertical", 52))
sketch1.addConstraint(Sketcher.Constraint("Vertical", 54))
sketch1.addConstraint(Sketcher.Constraint("Vertical", 56))
sketch1.addConstraint(Sketcher.Constraint("Horizontal", 60))
sketch1.addConstraint(Sketcher.Constraint("Horizontal", 62))
sketch1.addConstraint(Sketcher.Constraint("Horizontal", 64))
sketch1.addConstraint(Sketcher.Constraint("Horizontal", 68))
sketch1.addConstraint(Sketcher.Constraint("Horizontal", 72))
sketch1.addConstraint(Sketcher.Constraint("Horizontal", 74))
sketch1.addConstraint(Sketcher.Constraint("Horizontal", 76))
sketch1.addConstraint(Sketcher.Constraint("Coincident", 80, 3, -1, 1))
sketch1.addConstraint(Sketcher.Constraint("Equal", 7, 9))
sketch1.addConstraint(Sketcher.Constraint("Equal", 5, 11))
sketch1.addConstraint(Sketcher.Constraint("Equal", 3, 13))
sketch1.addConstraint(Sketcher.Constraint("Equal", 1, 15))
sketch1.addConstraint(Sketcher.Constraint("Equal", 15, 17))
sketch1.addConstraint(Sketcher.Constraint("Equal", 17, 19))
sketch1.addConstraint(Sketcher.Constraint("Equal", 19, 21))
sketch1.addConstraint(Sketcher.Constraint("Equal", 13, 23))
sketch1.addConstraint(Sketcher.Constraint("Equal", 11, 25))
sketch1.addConstraint(Sketcher.Constraint("Equal", 9, 27))
sketch1.addConstraint(Sketcher.Constraint("Equal", 27, 29))
sketch1.addConstraint(Sketcher.Constraint("Equal", 25, 31))
sketch1.addConstraint(Sketcher.Constraint("Equal", 23, 33))
sketch1.addConstraint(Sketcher.Constraint("Equal", 21, 35))
sketch1.addConstraint(Sketcher.Constraint("Equal", 35, 37))
sketch1.addConstraint(Sketcher.Constraint("Equal", 18, 38))
sketch1.addConstraint(Sketcher.Constraint("Equal", 37, 39))
sketch1.addConstraint(Sketcher.Constraint("Equal", 39, 41))
sketch1.addConstraint(Sketcher.Constraint("Equal", 33, 43))
sketch1.addConstraint(Sketcher.Constraint("Equal", 31, 45))
sketch1.addConstraint(Sketcher.Constraint("Equal", 29, 47))
sketch1.addConstraint(Sketcher.Constraint("Equal", 47, 49))
sketch1.addConstraint(Sketcher.Constraint("Equal", 45, 51))
sketch1.addConstraint(Sketcher.Constraint("Equal", 43, 53))
sketch1.addConstraint(Sketcher.Constraint("Equal", 41, 55))
sketch1.addConstraint(Sketcher.Constraint("Equal", 55, 57))
sketch1.addConstraint(Sketcher.Constraint("Equal", 38, 58))
sketch1.addConstraint(Sketcher.Constraint("Equal", 57, 59))
sketch1.addConstraint(Sketcher.Constraint("Equal", 59, 61))
sketch1.addConstraint(Sketcher.Constraint("Equal", 53, 63))
sketch1.addConstraint(Sketcher.Constraint("Equal", 51, 65))
sketch1.addConstraint(Sketcher.Constraint("Equal", 49, 67))
sketch1.addConstraint(Sketcher.Constraint("Equal", 67, 69))
sketch1.addConstraint(Sketcher.Constraint("Equal", 65, 71))
sketch1.addConstraint(Sketcher.Constraint("Equal", 63, 73))
sketch1.addConstraint(Sketcher.Constraint("Equal", 61, 75))
sketch1.addConstraint(Sketcher.Constraint("Equal", 75, 77))
sketch1.addConstraint(Sketcher.Constraint("Equal", 58, 78))
sketch1.addConstraint(Sketcher.Constraint("Equal", 77, 79))
sketch1.addConstraint(Sketcher.Constraint("Symmetric", 1, 3, 41, 3, -1, 1))
sketch1.addConstraint(Sketcher.Constraint("Symmetric", 3, 3, 43, 3, -1, 1))
sketch1.addConstraint(Sketcher.Constraint("Symmetric", 7, 3, 47, 3, -1, 1))
sketch1.addConstraint(Sketcher.Constraint("Symmetric", 11, 3, 51, 3, -1, 1))
sketch1.addConstraint(Sketcher.Constraint("Symmetric", 15, 3, 55, 3, -1, 1))
sketch1.addConstraint(Sketcher.Constraint("Symmetric", 17, 3, 57, 3, -1, 1))
sketch1.addConstraint(Sketcher.Constraint("Symmetric", 18, 3, 58, 3, -1, 1))
sketch1.addConstraint(Sketcher.Constraint("Symmetric", 19, 3, 59, 3, -1, 1))
sketch1.addConstraint(Sketcher.Constraint("Symmetric", 21, 3, 61, 3, -1, 1))
sketch1.addConstraint(Sketcher.Constraint("Symmetric", 23, 3, 63, 3, -1, 1))
sketch1.addConstraint(Sketcher.Constraint("Symmetric", 27, 3, 67, 3, -1, 1))
sketch1.addConstraint(Sketcher.Constraint("Symmetric", 31, 3, 71, 3, -1, 1))
sketch1.addConstraint(Sketcher.Constraint("Symmetric", 35, 3, 75, 3, -1, 1))
sketch1.addConstraint(Sketcher.Constraint("Symmetric", 37, 3, 77, 3, -1, 1))
sketch1.addConstraint(Sketcher.Constraint("Symmetric", 38, 3, 78, 3, -1, 1))
sketch1.addConstraint(Sketcher.Constraint("Symmetric", 39, 3, 79, 3, -1, 1))
sketch1.addConstraint(Sketcher.Constraint("Symmetric", 25, 3, 31, 3, -2))
sketch1.addConstraint(Sketcher.Constraint("Symmetric", 21, 3, 35, 3, -2))
sketch1.addConstraint(Sketcher.Constraint("Symmetric", 19, 3, 37, 3, -2))
sketch1.addConstraint(Sketcher.Constraint("Symmetric", 18, 3, 38, 3, -2))
sketch1.addConstraint(Sketcher.Constraint("Symmetric", 17, 3, 39, 3, -2))
sketch1.addConstraint(Sketcher.Constraint("Symmetric", 15, 3, 41, 3, -2))
sketch1.addConstraint(Sketcher.Constraint("Symmetric", 13, 3, 43, 3, -2))
sketch1.addConstraint(Sketcher.Constraint("Symmetric", 10, 2, 45, 2, -2))
sketch1.addConstraint(Sketcher.Constraint("Symmetric", 6, 2, 49, 2, -2))
sketch1.addConstraint(Sketcher.Constraint("Symmetric", 66, 2, 69, 2, -2))
sketch1.addConstraint(Sketcher.Constraint("Perpendicular", 6, 10))
sketch1.addConstraint(Sketcher.Constraint("Parallel", 10, 26))
sketch1.addConstraint(Sketcher.Constraint("Perpendicular", 26, 30))
sketch1.addConstraint(Sketcher.Constraint("Horizontal", 19, 3, 21, 3))
sketch1.addConstraint(Sketcher.Constraint("Horizontal", 3, 3, 53, 3))
sketch1.addConstraint(Sketcher.Constraint("Horizontal", 37, 3, 19, 2))
sketch1.addConstraint(Sketcher.Constraint("Horizontal", 20, 2, 21, 2))
sketch1.addConstraint(Sketcher.Constraint("Horizontal", 34, 2, 35, 2))
sketch1.addConstraint(Sketcher.Constraint("Horizontal", 77, 3, 59, 2))
sketch1.addConstraint(Sketcher.Constraint("Horizontal", 74, 2, 75, 2))
sketch1.addConstraint(Sketcher.Constraint("Vertical", 15, 3, 17, 3))
sketch1.addConstraint(Sketcher.Constraint("Vertical", 33, 3, 63, 3))
sketch1.addConstraint(Sketcher.Constraint("Vertical", 23, 3, 73, 3))
sketch1.addConstraint(Sketcher.Constraint("Vertical", 79, 3, 0, 2))
sketch1.addConstraint(Sketcher.Constraint("Vertical", 0, 2, 1, 2))
sketch1.addConstraint(Sketcher.Constraint("Vertical", 14, 2, 15, 2))
sketch1.addConstraint(Sketcher.Constraint("Vertical", 57, 3, 39, 2))
sketch1.addConstraint(Sketcher.Constraint("Vertical", 54, 2, 55, 2))
sketch1.addConstraint(Sketcher.Constraint("Equal", 76, 0))
sketch1.addConstraint(Sketcher.Constraint("Equal", 74, 2))
sketch1.addConstraint(Sketcher.Constraint("Equal", 72, 4))
sketch1.addConstraint(Sketcher.Constraint("Equal", 68, 8))
sketch1.addConstraint(Sketcher.Constraint("Equal", 10, 26))
sketch1.addConstraint(Sketcher.Constraint("Radius", 1, Q("0.02 in")))
sketch1.addConstraint(Sketcher.Constraint("Radius", 5, Q("0.04 in")))
sketch1.addConstraint(Sketcher.Constraint("Diameter", 80, Q("0.205 in")))
sketch1.addConstraint(Sketcher.Constraint("Radius", 7, Q("0.125 in")))
sketch1.addConstraint(Sketcher.Constraint("Radius", 18, Q("0.083 in")))
sketch1.addConstraint(Sketcher.Constraint("DistanceX", 1, 3, -1, 1, Q("0.5 in")))
sketch1.addConstraint(Sketcher.Constraint("DistanceY", -1, 1, 19, 3, Q("0.5 in")))
sketch1.addConstraint(Sketcher.Constraint("Radius", 3, Q("0.0435 in")))
sketch1.addConstraint(Sketcher.Constraint("DistanceY", 3, 3, -1, 1, Q("0.171 in")))
sketch1.addConstraint(Sketcher.Constraint("DistanceX", 7, 3, -1, 1, Q("0.302 in")))
sketch1.addConstraint(Sketcher.Constraint("DistanceY", -1, 1, 17, 3, Q("0.396 in")))
sketch1.addConstraint(Sketcher.Constraint("DistanceX", 18, 3, -1, 1, Q("0.417 in")))
sketch1.addConstraint(Sketcher.Constraint("DistanceY", -1, 1, 18, 3, Q("0.417 in")))
sketch1.addConstraint(Sketcher.Constraint("DistanceX", 20, 1, 20, 2, Q("3.217316 mm")))
sketch1.addConstraint(Sketcher.Constraint("DistanceX", 24, 2, 24, 1, Q("2.131394 mm")))
pad1 = body.newObject("PartDesign::Pad", "Pad")
pad1.Profile = sketch1
pad1.Length = 150

doc.recompute()
